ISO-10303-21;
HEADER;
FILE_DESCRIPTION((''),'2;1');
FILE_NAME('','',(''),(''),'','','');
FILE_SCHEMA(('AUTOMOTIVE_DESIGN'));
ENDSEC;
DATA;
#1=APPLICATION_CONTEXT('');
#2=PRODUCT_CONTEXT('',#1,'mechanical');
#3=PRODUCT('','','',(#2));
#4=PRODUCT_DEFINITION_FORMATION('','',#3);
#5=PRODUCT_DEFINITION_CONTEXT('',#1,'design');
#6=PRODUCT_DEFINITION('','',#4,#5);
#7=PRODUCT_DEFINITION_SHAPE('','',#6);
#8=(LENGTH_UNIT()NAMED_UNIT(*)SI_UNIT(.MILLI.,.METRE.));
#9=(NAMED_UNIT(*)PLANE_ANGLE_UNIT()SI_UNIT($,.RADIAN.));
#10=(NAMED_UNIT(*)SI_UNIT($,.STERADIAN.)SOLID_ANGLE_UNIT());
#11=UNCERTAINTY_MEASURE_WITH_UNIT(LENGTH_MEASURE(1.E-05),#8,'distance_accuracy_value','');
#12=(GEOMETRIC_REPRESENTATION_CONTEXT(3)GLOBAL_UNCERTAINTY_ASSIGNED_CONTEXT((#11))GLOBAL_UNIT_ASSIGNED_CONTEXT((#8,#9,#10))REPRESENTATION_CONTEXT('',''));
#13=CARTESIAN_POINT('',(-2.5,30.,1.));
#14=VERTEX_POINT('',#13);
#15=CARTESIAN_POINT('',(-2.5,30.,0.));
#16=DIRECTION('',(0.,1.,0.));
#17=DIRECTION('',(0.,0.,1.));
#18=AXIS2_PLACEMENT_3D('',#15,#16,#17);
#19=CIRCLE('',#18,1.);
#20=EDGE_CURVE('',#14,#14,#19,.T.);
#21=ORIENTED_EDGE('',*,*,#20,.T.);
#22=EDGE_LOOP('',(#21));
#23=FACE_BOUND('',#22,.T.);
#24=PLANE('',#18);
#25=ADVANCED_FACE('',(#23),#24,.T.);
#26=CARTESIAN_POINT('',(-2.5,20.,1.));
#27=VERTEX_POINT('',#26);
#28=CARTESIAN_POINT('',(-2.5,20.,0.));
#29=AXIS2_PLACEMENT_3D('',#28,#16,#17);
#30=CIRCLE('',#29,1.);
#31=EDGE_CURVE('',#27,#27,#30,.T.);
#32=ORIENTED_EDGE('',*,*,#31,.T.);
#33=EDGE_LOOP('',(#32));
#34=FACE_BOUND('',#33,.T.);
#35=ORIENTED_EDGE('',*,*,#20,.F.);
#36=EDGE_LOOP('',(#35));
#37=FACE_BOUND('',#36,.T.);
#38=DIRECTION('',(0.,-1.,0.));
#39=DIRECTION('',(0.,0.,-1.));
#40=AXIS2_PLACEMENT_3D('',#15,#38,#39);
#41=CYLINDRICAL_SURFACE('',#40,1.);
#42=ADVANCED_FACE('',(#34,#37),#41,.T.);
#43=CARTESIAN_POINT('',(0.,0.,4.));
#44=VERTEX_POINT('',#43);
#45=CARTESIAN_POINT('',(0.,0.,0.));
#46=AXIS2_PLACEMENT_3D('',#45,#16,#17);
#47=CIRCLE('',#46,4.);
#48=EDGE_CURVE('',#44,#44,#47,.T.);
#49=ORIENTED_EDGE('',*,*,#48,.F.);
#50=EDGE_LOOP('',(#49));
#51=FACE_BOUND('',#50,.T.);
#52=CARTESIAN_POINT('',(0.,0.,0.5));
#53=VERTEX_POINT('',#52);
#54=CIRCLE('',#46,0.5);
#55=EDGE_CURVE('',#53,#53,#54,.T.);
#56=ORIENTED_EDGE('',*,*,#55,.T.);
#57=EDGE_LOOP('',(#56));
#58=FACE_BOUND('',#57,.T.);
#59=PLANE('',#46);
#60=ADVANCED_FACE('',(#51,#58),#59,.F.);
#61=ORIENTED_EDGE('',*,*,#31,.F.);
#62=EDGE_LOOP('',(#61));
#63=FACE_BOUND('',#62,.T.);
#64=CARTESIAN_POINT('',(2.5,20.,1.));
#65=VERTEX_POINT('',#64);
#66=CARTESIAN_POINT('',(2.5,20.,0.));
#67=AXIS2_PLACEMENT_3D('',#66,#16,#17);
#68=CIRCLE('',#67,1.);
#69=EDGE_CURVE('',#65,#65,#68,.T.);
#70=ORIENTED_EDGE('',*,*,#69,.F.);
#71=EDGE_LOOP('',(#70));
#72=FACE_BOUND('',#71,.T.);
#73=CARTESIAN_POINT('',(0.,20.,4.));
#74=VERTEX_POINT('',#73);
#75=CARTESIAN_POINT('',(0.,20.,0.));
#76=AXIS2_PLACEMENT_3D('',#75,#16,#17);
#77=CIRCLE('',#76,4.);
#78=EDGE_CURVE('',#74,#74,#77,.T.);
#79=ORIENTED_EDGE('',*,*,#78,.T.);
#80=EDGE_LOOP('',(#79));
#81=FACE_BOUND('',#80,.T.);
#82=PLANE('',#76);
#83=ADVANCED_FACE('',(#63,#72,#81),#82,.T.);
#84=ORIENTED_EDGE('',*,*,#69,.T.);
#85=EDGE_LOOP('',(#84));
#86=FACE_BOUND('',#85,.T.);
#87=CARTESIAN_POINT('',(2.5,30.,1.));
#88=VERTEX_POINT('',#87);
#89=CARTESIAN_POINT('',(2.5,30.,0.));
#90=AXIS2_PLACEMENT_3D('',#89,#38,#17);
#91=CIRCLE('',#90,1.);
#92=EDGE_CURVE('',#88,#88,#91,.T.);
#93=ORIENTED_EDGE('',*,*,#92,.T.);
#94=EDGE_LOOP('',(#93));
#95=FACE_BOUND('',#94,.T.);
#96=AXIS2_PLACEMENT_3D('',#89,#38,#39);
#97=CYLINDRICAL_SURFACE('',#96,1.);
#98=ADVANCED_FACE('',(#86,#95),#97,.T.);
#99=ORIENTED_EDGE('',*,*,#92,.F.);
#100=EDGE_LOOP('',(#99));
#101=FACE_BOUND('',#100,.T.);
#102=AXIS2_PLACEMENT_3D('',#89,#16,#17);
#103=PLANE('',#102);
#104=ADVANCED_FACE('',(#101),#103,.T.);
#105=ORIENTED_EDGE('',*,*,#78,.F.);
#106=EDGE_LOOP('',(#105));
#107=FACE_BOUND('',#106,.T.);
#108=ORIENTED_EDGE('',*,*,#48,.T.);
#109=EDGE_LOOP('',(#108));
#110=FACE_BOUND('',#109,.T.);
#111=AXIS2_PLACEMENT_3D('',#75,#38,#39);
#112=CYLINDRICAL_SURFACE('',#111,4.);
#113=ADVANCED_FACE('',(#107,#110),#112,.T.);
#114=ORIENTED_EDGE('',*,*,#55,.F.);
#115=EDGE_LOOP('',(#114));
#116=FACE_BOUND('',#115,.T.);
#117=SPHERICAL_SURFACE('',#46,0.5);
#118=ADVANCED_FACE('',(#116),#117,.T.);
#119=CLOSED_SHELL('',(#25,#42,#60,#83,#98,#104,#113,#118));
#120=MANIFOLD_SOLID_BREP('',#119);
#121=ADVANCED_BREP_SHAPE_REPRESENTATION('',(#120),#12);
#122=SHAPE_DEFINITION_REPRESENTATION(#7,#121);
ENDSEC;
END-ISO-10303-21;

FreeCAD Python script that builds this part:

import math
import FreeCAD as App
import Part
import Sketcher

doc = App.newDocument("Part")
body = doc.addObject("PartDesign::Body", "Body")

# Sketch on XZ plane
sketch1 = body.newObject("Sketcher::SketchObject", "Sketch")
sketch1.AttachmentSupport = (doc.getObject("XZ_Plane"), [""])
sketch1.MapMode = "FlatFace"
sketch1.addGeometry(Part.Circle(App.Vector(0, 0, 0), App.Vector(0, 0, 1), 4), False)
sketch1.addConstraint([
    Sketcher.Constraint("Coincident", 0, 3, -1, 1),
    Sketcher.Constraint("Diameter", 0, 8.0),
])
pad1 = body.newObject("PartDesign::Pad", "Pad")
pad1.Profile = sketch1
pad1.Length = 20
pad1.Reversed = True

# Sketch on XZ plane
sketch2 = body.newObject("Sketcher::SketchObject", "Sketch001")
sketch2.AttachmentSupport = (doc.getObject("XZ_Plane"), [""])
sketch2.MapMode = "FlatFace"
sketch2.AttachmentOffset = App.Placement(App.Vector(0, 0, -20), App.Rotation())
sketch2.addGeometry(Part.Circle(App.Vector(-2.5, 0, 0), App.Vector(0, 0, 1), 1), False)
sketch2.addConstraint([
    Sketcher.Constraint("PointOnObject", 0, 3, -1),
    Sketcher.Constraint("Diameter", 0, 2.0),
    Sketcher.Constraint("DistanceX", 0, 3, -1, 1, 2.5),
])
pad2 = body.newObject("PartDesign::Pad", "Pad001")
pad2.Profile = sketch2
pad2.Length = 10
pad2.Reversed = True
doc.recompute()

mirrored = body.newObject("PartDesign::Mirrored", "Mirrored")
mirrored.Originals = [pad2]
mirrored.MirrorPlane = (doc.getObject("YZ_Plane"), [""])
body.Tip = mirrored

# Sketch on XZ plane
sketch3 = body.newObject("Sketcher::SketchObject", "Sketch002")
sketch3.AttachmentSupport = (doc.getObject("XZ_Plane"), [""])
sketch3.MapMode = "FlatFace"
sketch3.addGeometry([
    Part.LineSegment(App.Vector(0, -0.5, 0), App.Vector(0, 0.5, 0)),
    Part.ArcOfCircle(Part.Circle(App.Vector(0, 0, 0), App.Vector(0, 0, 1), 0.5), math.radians(90), math.radians(270)),
], False)
sketch3.addConstraint([
    Sketcher.Constraint("Coincident", 0, 1, 1, 2),
    Sketcher.Constraint("Coincident", 1, 1, 0, 2),
    Sketcher.Constraint("Vertical", 0),
    Sketcher.Constraint("Coincident", 1, 3, -1, 1),
    Sketcher.Constraint("PointOnObject", 0, 1, -2),
    Sketcher.Constraint("Radius", 1, 0.5),
])
revolution = body.newObject("PartDesign::Revolution", "Revolution")
revolution.Profile = sketch3
revolution.ReferenceAxis = (sketch3, ["V_Axis"])
revolution.Angle = 360

doc.recompute()
